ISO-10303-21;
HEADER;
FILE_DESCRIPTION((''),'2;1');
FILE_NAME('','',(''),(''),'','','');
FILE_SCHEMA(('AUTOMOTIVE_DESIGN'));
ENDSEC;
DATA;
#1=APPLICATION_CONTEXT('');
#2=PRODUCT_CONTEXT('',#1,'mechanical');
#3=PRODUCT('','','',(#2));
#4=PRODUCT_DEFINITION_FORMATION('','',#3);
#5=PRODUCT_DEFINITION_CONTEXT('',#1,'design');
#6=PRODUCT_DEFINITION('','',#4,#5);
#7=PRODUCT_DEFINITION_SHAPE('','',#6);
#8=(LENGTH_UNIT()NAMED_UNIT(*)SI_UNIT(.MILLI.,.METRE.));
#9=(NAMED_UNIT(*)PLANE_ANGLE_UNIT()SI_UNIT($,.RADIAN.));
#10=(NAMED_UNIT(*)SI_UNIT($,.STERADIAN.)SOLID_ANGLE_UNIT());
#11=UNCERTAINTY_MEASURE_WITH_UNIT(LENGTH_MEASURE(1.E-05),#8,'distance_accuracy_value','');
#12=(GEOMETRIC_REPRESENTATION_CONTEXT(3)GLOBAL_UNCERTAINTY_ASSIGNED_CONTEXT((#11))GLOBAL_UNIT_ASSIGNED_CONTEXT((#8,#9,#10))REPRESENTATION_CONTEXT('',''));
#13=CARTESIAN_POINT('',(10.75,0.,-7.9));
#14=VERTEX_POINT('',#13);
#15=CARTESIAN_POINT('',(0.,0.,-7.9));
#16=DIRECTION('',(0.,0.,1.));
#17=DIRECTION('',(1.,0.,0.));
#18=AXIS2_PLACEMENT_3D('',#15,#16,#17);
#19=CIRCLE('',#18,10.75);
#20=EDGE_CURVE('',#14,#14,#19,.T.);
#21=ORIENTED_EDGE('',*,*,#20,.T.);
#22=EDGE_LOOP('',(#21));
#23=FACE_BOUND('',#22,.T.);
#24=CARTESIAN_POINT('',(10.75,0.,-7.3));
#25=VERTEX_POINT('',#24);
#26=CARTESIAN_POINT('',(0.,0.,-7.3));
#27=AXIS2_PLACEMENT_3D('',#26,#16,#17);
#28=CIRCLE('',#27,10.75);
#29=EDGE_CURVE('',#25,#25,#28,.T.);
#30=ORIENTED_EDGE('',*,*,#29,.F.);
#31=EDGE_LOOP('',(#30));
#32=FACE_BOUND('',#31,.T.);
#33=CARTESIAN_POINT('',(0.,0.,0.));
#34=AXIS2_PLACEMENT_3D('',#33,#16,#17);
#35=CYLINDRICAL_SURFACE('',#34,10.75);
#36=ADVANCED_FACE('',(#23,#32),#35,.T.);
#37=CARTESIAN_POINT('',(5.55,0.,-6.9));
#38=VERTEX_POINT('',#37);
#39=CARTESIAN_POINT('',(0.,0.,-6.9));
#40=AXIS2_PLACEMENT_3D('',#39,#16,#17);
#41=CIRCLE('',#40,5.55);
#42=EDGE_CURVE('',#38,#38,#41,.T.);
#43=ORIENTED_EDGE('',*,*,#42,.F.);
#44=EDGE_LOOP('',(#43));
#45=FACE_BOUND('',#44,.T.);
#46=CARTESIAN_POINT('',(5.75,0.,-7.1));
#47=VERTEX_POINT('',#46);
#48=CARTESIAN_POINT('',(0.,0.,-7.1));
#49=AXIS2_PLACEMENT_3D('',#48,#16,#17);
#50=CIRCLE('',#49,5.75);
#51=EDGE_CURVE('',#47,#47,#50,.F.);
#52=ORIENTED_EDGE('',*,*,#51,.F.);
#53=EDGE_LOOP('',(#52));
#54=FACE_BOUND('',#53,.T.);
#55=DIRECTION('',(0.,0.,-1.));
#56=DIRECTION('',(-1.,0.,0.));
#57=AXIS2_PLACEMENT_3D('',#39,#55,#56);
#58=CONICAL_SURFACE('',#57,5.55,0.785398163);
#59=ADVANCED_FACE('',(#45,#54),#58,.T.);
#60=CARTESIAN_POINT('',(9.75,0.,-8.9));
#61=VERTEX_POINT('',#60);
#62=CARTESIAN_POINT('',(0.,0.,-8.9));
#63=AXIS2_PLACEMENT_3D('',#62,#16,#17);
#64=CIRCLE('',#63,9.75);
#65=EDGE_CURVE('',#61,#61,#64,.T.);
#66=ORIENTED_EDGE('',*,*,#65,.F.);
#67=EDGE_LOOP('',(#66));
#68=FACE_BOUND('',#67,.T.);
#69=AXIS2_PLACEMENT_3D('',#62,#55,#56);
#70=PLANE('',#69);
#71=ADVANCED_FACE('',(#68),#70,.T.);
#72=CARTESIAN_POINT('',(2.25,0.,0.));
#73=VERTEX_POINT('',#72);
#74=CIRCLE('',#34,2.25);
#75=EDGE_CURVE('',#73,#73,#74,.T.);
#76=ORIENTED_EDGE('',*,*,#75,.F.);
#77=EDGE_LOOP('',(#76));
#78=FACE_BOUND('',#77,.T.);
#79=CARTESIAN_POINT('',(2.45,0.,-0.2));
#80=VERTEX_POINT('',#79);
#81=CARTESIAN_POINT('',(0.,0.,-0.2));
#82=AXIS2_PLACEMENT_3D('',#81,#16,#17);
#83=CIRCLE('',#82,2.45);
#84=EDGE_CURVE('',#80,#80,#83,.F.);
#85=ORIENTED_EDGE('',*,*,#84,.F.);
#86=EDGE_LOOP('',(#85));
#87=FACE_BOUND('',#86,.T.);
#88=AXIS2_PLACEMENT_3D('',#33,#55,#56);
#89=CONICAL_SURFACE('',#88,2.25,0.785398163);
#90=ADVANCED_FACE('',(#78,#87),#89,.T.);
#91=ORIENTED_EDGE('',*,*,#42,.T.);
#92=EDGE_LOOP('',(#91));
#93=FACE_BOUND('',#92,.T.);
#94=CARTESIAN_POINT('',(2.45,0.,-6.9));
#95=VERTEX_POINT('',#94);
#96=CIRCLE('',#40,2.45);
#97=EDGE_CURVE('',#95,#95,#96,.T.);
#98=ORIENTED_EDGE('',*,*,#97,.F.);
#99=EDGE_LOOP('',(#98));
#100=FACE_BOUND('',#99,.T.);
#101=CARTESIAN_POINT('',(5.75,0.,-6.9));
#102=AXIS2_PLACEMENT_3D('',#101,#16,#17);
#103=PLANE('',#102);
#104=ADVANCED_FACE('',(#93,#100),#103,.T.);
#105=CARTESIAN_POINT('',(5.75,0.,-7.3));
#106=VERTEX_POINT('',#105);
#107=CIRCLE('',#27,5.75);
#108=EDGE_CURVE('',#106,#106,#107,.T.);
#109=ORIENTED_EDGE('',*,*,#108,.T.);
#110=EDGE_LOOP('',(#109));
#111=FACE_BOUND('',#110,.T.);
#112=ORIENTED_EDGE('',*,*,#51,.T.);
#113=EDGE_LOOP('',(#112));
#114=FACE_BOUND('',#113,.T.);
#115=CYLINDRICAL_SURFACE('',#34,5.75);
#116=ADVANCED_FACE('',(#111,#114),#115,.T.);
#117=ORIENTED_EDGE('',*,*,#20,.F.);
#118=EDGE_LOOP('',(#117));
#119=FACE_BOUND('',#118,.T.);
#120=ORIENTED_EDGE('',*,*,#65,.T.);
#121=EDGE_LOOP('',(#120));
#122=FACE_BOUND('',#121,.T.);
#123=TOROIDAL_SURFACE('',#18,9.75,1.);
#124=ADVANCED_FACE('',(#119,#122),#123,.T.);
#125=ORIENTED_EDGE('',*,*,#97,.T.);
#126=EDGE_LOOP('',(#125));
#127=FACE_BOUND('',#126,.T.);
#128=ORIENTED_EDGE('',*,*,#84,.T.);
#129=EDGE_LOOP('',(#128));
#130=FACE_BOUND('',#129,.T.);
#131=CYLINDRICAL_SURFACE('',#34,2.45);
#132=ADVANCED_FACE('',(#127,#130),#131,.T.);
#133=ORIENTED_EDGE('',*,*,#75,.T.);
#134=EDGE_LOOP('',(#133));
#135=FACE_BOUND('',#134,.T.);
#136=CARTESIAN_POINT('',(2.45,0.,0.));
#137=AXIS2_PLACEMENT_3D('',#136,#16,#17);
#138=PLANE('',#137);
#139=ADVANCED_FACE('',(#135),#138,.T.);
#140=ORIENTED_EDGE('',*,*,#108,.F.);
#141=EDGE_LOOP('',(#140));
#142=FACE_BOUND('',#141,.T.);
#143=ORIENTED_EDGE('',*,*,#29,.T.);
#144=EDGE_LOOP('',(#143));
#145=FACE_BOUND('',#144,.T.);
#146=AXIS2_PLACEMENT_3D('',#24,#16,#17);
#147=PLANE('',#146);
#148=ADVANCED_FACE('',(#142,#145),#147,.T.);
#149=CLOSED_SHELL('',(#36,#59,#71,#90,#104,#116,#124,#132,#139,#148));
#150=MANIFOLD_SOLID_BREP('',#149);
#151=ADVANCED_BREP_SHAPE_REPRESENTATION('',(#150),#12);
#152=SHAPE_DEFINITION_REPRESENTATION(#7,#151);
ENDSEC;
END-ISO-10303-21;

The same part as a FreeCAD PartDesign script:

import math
import FreeCAD as App
import Part
import Sketcher

V = App.Vector
Q = App.Units.Quantity


def edges_at(feature, points):
    """Names of the edges that pass closest to the given points."""
    edges = feature.Shape.Edges
    near = lambda p: min(range(len(edges)), key=lambda i: edges[i].distToShape(Part.Vertex(*p))[0])
    return sorted({f"Edge{near(p) + 1}" for p in points})

doc = App.newDocument("Part")
body = doc.addObject("PartDesign::Body", "Body")

sketch1 = body.newObject("Sketcher::SketchObject", "Sketch")
sketch1.AttachmentSupport = (doc.getObject("XZ_Plane"), [""])
sketch1.MapMode = "FlatFace"
sketch1.addGeometry([
    Part.LineSegment(V(0, 0, 0), V(2.45, 0, 0)),
    Part.LineSegment(V(2.45, 0, 0), V(2.45, -6.9, 0)),
    Part.LineSegment(V(2.45, -6.9, 0), V(5.75, -6.9, 0)),
    Part.LineSegment(V(5.75, -6.9, 0), V(5.75, -7.3, 0)),
    Part.LineSegment(V(5.75, -7.3, 0), V(10.75, -7.3, 0)),
    Part.LineSegment(V(10.75, -7.3, 0), V(10.75, -7.9, 0)),
    Part.ArcOfCircle(Part.Circle(V(9.75, -7.9, 0), V(0, 0, 1), 1), math.radians(-90), math.radians(0)),
    Part.LineSegment(V(9.75, -8.9, 0), V(0, -8.9, 0)),
    Part.LineSegment(V(0, -8.9, 0), V(0, 0, 0)),
], False)
sketch1.addConstraint([
    Sketcher.Constraint("Coincident", 0, 2, 1, 1),
    Sketcher.Constraint("Coincident", 1, 2, 2, 1),
    Sketcher.Constraint("Coincident", 2, 2, 3, 1),
    Sketcher.Constraint("Coincident", 3, 2, 4, 1),
    Sketcher.Constraint("Coincident", 4, 2, 5, 1),
    Sketcher.Constraint("Tangent", 5, 2, 6, 2),
    Sketcher.Constraint("Tangent", 6, 1, 7, 1),
    Sketcher.Constraint("Coincident", 7, 2, 8, 1),
    Sketcher.Constraint("Coincident", 8, 2, 0, 1),
    Sketcher.Constraint("Horizontal", 0),
    Sketcher.Constraint("Vertical", 1),
    Sketcher.Constraint("Horizontal", 2),
    Sketcher.Constraint("Vertical", 3),
    Sketcher.Constraint("Horizontal", 4),
    Sketcher.Constraint("Vertical", 5),
    Sketcher.Constraint("Horizontal", 7),
    Sketcher.Constraint("Vertical", 8),
    Sketcher.Constraint("Coincident", 8, 2, -1, 1),
    Sketcher.Constraint("Radius", 6, Q("1 mm")),
    Sketcher.Constraint("DistanceX", 4, 1, 4, 2, Q("5 mm")),
    Sketcher.Constraint("DistanceX", 2, 1, 2, 2, Q("3.3 mm")),
    Sketcher.Constraint("DistanceY", 1, 2, 1, 1, Q("6.9 mm")),
    Sketcher.Constraint("DistanceY", 3, 2, 3, 1, Q("0.4 mm")),
    Sketcher.Constraint("DistanceY", 5, 2, 5, 1, Q("0.6 mm")),
    Sketcher.Constraint("DistanceX", 0, 1, 0, 2, Q("2.45 mm")),
])
revolution = body.newObject("PartDesign::Revolution", "Revolution")
revolution.Profile = sketch1
revolution.ReferenceAxis = (sketch1, ["V_Axis"])
revolution.Angle = 360
doc.recompute()

chamfer = body.newObject("PartDesign::Chamfer", "Chamfer")
chamfer.Base = (revolution, edges_at(revolution, [(-5.75, 0, -6.9)]))
chamfer.Size = 0.2
doc.recompute()

chamfer2 = body.newObject("PartDesign::Chamfer", "Chamfer001")
chamfer2.Base = (chamfer, edges_at(chamfer, [(-2.45, 0, 0)]))
chamfer2.Size = 0.2

doc.recompute()
